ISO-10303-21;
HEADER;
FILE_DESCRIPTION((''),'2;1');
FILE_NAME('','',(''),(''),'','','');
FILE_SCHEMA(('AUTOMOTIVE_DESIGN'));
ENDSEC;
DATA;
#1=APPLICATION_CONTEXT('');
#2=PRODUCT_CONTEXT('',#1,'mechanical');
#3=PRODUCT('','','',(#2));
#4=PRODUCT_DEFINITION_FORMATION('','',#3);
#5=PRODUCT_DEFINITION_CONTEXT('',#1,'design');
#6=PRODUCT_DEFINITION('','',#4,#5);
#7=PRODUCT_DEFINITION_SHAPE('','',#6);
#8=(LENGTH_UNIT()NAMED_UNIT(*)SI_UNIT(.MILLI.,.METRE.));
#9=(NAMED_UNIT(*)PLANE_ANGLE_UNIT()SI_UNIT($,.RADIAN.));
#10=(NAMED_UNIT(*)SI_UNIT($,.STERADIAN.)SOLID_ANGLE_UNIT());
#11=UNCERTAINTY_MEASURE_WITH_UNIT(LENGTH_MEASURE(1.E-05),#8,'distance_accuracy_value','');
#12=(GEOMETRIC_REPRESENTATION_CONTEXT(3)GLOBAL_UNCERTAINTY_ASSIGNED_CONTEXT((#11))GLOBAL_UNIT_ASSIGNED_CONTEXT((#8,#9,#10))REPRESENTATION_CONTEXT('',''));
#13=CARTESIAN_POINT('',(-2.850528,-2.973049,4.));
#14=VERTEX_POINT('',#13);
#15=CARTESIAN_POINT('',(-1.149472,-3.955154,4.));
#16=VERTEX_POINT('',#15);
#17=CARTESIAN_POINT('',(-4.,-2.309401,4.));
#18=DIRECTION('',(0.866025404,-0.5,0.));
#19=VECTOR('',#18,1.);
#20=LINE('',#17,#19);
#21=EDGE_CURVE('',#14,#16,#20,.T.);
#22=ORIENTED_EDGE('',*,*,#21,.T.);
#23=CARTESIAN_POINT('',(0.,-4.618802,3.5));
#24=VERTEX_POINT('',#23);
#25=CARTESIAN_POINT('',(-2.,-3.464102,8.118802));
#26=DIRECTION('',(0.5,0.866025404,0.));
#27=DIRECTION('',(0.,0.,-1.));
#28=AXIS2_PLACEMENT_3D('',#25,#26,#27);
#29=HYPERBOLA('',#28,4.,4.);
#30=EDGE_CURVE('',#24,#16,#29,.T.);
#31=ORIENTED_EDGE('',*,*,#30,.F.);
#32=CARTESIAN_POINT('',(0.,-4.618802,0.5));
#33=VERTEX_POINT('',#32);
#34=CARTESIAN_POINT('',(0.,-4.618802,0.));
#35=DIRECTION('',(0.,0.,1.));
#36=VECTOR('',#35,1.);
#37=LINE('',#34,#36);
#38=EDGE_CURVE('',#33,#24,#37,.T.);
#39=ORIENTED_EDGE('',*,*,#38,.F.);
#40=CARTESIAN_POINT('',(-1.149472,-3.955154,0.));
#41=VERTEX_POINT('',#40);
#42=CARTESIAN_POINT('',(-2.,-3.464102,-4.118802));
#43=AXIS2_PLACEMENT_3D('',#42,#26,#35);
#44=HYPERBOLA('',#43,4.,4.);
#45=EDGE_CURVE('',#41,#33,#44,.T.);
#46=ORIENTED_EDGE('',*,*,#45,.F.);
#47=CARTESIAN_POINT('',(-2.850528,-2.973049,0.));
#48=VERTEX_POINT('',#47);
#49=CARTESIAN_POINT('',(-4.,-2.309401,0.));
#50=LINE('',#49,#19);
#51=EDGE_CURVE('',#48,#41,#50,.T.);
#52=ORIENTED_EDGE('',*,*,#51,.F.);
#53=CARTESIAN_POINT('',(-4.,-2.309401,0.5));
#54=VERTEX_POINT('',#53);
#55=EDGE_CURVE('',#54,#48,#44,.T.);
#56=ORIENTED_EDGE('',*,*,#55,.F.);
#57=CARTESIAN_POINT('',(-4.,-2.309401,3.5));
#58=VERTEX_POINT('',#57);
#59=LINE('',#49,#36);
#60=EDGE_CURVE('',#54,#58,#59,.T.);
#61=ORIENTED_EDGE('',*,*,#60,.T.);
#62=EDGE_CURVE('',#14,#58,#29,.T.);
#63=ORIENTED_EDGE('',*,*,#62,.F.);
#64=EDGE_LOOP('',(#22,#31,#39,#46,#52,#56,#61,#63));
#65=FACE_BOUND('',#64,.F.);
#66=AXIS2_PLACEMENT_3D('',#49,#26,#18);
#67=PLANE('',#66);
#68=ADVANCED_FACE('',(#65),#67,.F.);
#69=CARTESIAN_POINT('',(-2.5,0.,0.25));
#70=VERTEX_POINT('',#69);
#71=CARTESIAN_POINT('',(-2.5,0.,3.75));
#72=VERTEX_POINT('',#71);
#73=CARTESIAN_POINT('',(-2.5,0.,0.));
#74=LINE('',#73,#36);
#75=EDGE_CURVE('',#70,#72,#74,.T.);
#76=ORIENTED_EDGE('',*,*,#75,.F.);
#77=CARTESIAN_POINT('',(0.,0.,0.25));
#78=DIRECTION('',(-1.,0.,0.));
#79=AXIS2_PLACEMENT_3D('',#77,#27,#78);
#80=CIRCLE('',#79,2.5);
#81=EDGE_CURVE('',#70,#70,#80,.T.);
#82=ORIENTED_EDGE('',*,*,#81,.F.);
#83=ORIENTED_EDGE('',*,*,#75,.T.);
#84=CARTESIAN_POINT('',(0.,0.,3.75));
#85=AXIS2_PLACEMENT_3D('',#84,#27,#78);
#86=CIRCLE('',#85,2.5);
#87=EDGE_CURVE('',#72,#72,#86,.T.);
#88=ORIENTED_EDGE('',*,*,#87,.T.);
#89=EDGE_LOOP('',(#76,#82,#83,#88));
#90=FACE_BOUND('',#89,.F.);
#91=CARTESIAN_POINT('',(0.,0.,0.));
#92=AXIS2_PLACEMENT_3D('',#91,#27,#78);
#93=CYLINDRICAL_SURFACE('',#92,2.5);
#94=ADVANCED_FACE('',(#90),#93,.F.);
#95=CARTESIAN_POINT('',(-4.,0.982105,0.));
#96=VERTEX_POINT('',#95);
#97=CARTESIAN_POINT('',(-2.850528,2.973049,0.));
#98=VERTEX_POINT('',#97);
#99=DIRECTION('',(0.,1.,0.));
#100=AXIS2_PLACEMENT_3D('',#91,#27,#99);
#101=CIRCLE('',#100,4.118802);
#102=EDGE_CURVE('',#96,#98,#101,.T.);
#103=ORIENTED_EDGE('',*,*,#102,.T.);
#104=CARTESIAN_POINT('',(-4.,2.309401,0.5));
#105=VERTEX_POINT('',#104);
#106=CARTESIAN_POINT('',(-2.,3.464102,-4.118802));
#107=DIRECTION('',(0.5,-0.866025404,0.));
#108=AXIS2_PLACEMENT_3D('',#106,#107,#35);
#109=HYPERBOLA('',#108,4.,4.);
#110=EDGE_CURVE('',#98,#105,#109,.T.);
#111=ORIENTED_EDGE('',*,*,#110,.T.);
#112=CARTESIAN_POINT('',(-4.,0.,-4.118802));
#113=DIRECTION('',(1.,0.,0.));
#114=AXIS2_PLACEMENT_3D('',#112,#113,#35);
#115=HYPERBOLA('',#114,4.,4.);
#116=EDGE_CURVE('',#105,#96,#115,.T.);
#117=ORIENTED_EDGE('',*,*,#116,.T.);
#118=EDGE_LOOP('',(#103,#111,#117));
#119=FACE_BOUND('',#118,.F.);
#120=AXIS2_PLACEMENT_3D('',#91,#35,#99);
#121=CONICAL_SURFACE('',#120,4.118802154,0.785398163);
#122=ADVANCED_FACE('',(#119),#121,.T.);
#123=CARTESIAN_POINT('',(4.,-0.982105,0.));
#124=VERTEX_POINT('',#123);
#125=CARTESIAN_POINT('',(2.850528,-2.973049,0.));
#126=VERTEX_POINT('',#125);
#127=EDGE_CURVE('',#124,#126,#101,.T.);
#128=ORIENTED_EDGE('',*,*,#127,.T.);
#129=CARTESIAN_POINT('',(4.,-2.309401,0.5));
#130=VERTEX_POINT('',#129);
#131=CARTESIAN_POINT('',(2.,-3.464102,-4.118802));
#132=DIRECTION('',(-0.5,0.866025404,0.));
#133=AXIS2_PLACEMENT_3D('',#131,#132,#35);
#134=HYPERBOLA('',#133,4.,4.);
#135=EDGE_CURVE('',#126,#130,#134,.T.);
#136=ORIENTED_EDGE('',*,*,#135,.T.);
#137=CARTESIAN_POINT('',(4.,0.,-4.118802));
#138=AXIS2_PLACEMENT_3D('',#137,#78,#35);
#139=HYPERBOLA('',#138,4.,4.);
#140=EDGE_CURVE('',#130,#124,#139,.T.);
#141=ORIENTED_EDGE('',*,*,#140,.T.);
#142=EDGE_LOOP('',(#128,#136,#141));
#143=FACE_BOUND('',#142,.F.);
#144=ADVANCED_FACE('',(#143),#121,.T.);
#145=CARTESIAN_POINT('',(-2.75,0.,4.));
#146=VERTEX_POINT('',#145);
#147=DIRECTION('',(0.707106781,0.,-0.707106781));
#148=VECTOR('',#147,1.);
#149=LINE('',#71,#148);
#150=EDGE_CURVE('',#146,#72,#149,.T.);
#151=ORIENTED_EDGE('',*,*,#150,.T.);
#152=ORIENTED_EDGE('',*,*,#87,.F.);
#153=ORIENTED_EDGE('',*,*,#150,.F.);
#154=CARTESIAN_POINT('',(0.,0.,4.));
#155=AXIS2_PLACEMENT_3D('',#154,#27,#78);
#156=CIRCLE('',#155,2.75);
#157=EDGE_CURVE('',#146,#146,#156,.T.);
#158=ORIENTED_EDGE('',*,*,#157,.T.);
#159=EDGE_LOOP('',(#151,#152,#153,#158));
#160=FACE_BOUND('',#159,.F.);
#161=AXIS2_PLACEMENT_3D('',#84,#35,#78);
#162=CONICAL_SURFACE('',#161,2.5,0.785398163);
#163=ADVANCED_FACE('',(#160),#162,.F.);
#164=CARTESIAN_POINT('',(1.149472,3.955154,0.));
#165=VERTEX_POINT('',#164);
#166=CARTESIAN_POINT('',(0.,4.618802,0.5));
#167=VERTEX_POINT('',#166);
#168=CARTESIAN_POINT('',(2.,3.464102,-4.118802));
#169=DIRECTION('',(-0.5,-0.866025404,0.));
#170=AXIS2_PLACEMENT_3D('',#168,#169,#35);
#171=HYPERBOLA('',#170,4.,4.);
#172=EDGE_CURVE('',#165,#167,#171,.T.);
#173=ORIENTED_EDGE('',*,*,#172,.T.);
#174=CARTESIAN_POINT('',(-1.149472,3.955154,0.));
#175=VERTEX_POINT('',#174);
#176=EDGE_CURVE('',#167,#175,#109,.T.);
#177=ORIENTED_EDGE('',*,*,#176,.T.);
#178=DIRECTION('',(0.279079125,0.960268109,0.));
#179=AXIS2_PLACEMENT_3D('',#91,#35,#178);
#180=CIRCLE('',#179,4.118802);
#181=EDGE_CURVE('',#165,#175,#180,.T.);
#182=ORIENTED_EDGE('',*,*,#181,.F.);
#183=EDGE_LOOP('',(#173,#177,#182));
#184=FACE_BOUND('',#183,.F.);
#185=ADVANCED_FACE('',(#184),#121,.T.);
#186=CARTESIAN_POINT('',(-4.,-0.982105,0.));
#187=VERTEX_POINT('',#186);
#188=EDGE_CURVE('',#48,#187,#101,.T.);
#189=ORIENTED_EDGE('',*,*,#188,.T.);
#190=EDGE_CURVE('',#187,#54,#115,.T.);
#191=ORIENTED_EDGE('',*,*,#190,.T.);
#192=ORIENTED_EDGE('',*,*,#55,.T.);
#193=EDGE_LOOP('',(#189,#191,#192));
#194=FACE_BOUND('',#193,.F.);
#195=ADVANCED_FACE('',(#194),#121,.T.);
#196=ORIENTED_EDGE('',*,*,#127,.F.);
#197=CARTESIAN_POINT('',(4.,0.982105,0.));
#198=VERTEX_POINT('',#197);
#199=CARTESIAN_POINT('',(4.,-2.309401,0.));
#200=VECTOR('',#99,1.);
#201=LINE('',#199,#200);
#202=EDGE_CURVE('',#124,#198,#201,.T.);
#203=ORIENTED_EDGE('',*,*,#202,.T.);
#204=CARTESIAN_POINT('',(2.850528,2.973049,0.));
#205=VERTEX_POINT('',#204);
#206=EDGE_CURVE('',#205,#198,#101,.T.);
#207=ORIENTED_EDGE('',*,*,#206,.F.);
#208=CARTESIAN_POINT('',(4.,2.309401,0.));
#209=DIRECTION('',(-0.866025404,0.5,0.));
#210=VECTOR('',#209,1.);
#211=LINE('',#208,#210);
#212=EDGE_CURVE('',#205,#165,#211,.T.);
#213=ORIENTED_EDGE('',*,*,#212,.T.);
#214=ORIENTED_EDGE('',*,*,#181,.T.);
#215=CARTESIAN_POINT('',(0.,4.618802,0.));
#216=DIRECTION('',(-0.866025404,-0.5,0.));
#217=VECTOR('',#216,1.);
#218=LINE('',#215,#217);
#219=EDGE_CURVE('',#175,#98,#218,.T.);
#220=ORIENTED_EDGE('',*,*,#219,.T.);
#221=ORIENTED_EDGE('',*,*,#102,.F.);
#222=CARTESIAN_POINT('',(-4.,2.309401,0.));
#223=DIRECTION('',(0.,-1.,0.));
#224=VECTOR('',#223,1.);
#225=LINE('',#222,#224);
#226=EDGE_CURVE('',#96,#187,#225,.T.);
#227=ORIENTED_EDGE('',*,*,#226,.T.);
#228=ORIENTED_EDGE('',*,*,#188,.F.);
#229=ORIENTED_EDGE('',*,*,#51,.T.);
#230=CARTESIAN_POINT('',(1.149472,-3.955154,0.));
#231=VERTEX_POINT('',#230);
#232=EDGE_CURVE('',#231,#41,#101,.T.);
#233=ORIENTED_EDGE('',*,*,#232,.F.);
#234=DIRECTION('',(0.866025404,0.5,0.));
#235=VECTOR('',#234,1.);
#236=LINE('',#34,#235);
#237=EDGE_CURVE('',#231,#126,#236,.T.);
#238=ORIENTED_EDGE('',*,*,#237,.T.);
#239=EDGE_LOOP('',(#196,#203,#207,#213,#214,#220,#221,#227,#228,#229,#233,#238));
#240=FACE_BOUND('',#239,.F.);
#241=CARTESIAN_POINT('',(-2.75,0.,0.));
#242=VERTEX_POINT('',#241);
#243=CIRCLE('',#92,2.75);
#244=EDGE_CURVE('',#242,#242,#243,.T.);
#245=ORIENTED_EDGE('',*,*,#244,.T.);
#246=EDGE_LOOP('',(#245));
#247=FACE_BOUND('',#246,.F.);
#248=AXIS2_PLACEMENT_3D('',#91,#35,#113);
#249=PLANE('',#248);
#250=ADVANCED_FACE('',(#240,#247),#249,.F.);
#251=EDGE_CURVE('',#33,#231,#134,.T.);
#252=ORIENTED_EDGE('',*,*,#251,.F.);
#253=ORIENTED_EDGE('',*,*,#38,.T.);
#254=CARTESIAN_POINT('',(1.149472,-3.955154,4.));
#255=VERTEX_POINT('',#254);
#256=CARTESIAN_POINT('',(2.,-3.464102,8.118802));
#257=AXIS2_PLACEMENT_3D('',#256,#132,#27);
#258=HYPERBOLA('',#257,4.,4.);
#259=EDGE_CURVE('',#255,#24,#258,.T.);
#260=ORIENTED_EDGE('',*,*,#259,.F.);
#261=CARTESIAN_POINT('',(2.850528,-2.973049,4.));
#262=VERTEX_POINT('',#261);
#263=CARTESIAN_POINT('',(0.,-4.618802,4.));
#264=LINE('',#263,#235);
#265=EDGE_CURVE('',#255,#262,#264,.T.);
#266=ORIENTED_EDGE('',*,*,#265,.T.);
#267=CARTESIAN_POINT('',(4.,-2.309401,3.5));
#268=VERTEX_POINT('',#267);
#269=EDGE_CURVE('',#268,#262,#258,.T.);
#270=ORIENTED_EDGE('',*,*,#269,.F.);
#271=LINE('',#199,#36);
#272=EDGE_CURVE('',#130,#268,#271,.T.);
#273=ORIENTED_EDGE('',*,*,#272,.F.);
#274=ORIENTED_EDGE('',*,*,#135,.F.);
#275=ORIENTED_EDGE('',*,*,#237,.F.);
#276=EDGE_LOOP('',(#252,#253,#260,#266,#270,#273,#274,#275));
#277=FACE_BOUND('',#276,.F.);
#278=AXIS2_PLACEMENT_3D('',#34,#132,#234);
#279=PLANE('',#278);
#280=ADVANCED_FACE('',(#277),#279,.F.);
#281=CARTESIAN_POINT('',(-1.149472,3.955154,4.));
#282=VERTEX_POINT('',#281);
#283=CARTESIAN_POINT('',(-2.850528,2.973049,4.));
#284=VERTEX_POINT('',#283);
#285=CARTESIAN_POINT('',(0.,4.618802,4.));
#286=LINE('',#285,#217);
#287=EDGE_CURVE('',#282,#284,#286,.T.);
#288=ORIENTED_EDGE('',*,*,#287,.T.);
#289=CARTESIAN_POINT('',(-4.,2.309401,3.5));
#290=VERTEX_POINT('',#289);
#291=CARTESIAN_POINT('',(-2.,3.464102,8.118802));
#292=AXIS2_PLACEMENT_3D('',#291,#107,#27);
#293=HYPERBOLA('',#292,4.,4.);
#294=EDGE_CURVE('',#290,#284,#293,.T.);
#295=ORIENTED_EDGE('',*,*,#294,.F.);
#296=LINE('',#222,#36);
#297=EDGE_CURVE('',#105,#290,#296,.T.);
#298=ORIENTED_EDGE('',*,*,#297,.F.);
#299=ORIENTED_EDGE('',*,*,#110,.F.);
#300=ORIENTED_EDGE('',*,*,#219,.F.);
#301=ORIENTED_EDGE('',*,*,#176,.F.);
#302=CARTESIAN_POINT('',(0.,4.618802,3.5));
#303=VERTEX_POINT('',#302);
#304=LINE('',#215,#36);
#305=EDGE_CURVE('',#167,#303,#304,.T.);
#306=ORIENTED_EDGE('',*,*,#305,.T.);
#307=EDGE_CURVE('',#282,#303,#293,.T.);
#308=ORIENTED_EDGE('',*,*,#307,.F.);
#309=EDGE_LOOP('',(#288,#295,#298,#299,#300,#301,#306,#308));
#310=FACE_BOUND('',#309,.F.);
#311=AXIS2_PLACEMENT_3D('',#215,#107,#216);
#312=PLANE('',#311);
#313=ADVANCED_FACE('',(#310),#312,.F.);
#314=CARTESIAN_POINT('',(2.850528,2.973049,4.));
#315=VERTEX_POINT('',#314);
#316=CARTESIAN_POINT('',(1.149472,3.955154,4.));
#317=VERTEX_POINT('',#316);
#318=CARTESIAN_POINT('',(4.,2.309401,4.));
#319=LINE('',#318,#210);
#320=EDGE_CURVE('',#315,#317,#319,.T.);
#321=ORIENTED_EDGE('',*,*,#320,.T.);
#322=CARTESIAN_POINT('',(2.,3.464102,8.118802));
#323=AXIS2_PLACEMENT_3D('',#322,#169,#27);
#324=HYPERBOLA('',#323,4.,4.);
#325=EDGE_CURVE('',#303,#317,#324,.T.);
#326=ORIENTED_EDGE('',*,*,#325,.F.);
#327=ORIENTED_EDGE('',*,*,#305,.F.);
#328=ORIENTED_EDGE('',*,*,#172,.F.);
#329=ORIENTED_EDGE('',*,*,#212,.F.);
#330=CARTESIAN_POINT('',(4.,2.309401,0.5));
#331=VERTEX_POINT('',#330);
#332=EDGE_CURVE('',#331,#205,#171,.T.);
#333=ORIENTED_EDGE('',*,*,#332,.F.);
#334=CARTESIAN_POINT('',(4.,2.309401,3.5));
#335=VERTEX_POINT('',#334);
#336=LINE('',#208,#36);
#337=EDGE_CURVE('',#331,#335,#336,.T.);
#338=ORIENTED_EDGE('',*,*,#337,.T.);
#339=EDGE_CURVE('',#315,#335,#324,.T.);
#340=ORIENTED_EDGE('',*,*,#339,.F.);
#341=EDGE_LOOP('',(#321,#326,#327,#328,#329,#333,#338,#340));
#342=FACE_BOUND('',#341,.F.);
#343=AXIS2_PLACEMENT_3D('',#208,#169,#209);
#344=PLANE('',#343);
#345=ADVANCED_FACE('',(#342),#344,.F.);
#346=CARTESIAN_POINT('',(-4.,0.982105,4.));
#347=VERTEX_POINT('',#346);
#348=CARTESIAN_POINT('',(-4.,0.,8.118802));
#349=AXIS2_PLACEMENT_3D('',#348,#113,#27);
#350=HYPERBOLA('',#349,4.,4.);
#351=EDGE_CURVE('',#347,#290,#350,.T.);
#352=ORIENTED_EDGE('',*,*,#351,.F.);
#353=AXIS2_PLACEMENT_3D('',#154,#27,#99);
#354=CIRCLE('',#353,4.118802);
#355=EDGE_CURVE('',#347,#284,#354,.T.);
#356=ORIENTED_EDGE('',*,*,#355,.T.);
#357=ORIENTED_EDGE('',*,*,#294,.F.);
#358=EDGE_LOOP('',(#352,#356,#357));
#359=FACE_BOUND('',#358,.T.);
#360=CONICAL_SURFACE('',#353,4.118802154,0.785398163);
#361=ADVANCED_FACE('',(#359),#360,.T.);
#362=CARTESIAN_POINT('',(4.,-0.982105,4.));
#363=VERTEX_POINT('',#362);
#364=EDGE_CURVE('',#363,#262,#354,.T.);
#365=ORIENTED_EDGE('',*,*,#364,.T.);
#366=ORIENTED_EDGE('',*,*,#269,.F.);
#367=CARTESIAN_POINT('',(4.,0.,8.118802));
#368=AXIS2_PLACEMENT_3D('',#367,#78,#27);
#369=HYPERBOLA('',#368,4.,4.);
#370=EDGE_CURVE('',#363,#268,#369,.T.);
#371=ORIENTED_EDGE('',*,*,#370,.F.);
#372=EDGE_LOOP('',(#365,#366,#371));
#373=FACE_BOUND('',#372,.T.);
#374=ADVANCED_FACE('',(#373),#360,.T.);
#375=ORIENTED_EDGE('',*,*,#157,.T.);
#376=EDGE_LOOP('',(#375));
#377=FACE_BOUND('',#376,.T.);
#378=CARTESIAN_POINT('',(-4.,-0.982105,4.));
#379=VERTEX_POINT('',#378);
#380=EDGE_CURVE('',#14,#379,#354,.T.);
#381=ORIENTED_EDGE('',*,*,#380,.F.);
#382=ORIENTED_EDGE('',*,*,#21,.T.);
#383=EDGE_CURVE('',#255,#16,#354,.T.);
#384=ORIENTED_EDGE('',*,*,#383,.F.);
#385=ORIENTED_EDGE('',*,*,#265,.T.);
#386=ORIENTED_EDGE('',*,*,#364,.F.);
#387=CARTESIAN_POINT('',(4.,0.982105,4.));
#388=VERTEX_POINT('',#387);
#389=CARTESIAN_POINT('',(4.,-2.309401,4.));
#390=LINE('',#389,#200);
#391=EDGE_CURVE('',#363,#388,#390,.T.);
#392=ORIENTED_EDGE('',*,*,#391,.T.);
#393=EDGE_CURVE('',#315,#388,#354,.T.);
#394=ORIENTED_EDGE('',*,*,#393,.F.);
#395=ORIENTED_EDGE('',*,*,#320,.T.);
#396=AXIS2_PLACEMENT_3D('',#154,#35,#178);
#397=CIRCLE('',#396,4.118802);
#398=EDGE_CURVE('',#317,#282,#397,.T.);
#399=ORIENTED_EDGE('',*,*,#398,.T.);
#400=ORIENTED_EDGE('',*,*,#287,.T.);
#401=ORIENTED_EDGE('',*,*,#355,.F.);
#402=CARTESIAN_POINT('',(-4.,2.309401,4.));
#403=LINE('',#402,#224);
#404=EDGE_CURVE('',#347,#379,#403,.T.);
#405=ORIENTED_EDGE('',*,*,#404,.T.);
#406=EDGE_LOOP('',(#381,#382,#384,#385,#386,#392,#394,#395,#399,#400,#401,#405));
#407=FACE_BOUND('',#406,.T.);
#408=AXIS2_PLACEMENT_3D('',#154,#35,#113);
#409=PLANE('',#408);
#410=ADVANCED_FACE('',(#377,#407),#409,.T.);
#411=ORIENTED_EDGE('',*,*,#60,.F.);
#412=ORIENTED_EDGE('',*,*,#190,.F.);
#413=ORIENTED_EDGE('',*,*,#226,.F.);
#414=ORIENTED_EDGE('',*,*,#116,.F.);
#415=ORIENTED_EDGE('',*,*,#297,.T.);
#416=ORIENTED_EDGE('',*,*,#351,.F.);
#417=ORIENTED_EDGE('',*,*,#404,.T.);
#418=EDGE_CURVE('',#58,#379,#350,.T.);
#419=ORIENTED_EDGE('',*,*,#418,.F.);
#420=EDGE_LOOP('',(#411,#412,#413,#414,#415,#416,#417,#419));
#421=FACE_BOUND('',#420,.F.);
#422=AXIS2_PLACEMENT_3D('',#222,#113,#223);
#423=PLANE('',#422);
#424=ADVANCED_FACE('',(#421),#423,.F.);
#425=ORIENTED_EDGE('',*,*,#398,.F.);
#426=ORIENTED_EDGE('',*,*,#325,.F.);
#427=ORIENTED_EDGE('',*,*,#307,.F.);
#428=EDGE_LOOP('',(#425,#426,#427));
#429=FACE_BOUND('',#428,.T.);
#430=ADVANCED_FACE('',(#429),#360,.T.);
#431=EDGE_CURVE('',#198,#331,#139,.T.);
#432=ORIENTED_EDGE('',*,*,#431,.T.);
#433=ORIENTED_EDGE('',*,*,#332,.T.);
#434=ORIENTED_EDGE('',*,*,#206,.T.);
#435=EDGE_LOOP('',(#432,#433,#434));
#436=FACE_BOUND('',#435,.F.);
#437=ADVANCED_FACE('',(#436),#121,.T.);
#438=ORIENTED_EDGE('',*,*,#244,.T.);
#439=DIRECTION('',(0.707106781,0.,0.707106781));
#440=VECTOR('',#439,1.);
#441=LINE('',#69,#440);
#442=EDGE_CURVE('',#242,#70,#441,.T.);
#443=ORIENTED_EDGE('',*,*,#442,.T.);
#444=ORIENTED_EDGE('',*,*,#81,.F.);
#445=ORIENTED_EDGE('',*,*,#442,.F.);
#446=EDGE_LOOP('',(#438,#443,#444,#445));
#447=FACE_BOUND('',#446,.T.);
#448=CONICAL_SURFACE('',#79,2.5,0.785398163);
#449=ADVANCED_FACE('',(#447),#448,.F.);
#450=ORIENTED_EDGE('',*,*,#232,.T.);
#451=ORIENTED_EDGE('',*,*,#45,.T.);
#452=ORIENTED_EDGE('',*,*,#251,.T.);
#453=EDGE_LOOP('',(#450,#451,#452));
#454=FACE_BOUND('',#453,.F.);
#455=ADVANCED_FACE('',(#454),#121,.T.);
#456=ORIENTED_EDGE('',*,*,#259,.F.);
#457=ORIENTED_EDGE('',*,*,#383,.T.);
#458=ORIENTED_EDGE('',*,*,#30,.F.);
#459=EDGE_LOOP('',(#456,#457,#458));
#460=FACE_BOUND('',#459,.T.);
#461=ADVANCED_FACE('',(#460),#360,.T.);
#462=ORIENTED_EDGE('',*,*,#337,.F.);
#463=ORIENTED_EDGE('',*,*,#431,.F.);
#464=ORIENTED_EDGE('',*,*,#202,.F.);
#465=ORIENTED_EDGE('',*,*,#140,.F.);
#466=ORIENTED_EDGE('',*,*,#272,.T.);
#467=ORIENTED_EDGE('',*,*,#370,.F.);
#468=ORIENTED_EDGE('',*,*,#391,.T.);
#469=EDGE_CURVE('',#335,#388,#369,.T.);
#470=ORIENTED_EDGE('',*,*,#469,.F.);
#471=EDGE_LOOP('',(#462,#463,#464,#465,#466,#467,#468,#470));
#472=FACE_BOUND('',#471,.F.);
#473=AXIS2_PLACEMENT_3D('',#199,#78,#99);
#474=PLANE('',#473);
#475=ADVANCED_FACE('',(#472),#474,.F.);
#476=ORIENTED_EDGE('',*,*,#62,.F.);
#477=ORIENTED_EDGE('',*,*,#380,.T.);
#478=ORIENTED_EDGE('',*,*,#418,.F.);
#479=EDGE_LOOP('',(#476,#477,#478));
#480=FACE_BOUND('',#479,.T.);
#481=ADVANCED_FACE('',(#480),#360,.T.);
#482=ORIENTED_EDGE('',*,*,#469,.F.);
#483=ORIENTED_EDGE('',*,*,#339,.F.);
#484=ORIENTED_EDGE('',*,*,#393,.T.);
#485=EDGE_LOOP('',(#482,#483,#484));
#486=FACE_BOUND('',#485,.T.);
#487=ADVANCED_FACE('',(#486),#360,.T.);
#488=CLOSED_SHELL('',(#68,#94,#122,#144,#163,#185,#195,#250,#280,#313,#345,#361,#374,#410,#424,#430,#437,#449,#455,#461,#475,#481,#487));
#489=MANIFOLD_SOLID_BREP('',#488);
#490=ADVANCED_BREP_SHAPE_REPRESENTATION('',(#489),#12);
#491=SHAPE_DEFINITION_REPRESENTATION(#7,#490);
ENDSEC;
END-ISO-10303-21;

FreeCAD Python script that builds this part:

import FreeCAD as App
import Part
import Sketcher
from FreeCAD import Vector
Q = App.Units.Quantity


def edges_at(feature, points):
    """Names of the edges that pass closest to the given points."""
    edges = feature.Shape.Edges
    near = lambda p: min(range(len(edges)), key=lambda i: edges[i].distToShape(Part.Vertex(*p))[0])
    return sorted({f"Edge{near(p) + 1}" for p in points})


def add_polygon(sketch, points):
    """Adds a closed chain of lines whose ends are joined by coincident constraints."""
    first, n = sketch.GeometryCount, len(points)
    for a, b in zip(points, points[1:] + points[:1]):
        sketch.addGeometry(Part.LineSegment(App.Vector(*a, 0), App.Vector(*b, 0)), False)
    for i in range(n):
        sketch.addConstraint(Sketcher.Constraint("Coincident", first + i, 2, first + (i + 1) % n, 1))

doc = App.newDocument("Part")
body = doc.addObject("PartDesign::Body", "Body")

sketch1 = body.newObject("Sketcher::SketchObject", "Sketch")
sketch1.AttachmentSupport = (doc.getObject("XY_Plane"), [""])
sketch1.MapMode = "FlatFace"
add_polygon(sketch1, [(0, 4.6), (-4, 2.3), (-4, -2.3), (0, -4.6), (4, -2.3), (4, 2.3)])
sketch1.addConstraint([
    Sketcher.Constraint("Vertical", 1),
    Sketcher.Constraint("Vertical", 4),
    Sketcher.Constraint("Symmetric", 0, 2, 3, 2, -1, 1),
    Sketcher.Constraint("Symmetric", 2, 2, 5, 2, -1, 1),
    Sketcher.Constraint("PointOnObject", 2, 2, -2),
    Sketcher.Constraint("Parallel", 2, 5),
    Sketcher.Constraint("Horizontal", 1, 2, 3, 2),
    Sketcher.Constraint("Angle", 0, Q("-150 deg")),
    Sketcher.Constraint("DistanceX", 0, 2, -1, 1, 4.0),
    Sketcher.Constraint("DistanceY", -1, 1, 0, 2, 2.309401),
])
pad1 = body.newObject("PartDesign::Pad", "Pad")
pad1.Profile = sketch1
pad1.Length = 4

sketch2 = body.newObject("Sketcher::SketchObject", "Sketch001")
sketch2.AttachmentSupport = (doc.getObject("YZ_Plane"), [""])
sketch2.MapMode = "FlatFace"
add_polygon(sketch2, [(4.6, 4), (4.1, 4), (4.6, 3.5)])
add_polygon(sketch2, [(4.6, 0), (4.6, 0.5), (4.1, 0)])
sketch2.addConstraint([
    Sketcher.Constraint("Horizontal", 0),
    Sketcher.Constraint("Vertical", 2),
    Sketcher.Constraint("Vertical", 3),
    Sketcher.Constraint("Horizontal", 5),
    Sketcher.Constraint("PointOnObject", 4, 2, -1),
    Sketcher.Constraint("Perpendicular", 1, 4),
    Sketcher.Constraint("Vertical", 2, 2, 3, 2),
    Sketcher.Constraint("Vertical", 0, 2, 4, 2),
    Sketcher.Constraint("Equal", 5, 2),
    Sketcher.Constraint("DistanceX", 0, 2, 0, 1, 0.5),
    Sketcher.Constraint("DistanceY", -1, 1, 0, 2, 4.0),
    Sketcher.Constraint("DistanceX", -1, 1, 0, 2, 4.118802),
])
groove = body.newObject("PartDesign::Groove", "Groove")
groove.Profile = sketch2
groove.ReferenceAxis = (sketch2, ["V_Axis"])
groove.Angle = 360

sketch3 = body.newObject("Sketcher::SketchObject", "Sketch002")
sketch3.AttachmentSupport = (doc.getObject("XY_Plane"), [""])
sketch3.MapMode = "FlatFace"
sketch3.addGeometry(Part.Circle(Vector(0, 0, 0), Vector(0, 0, 1), 2.5), False)
sketch3.addConstraint([
    Sketcher.Constraint("Coincident", 0, 3, -1, 1),
    Sketcher.Constraint("Diameter", 0, 5.0),
])
pocket1 = body.newObject("PartDesign::Pocket", "Pocket")
pocket1.Profile = sketch3
pocket1.Type = "ThroughAll"
pocket1.Reversed = True
doc.recompute()

chamfer = body.newObject("PartDesign::Chamfer", "Chamfer")
chamfer.Base = (pocket1, edges_at(pocket1, [(2.5, 0, 4), (2.5, 0, 0)]))
chamfer.Size = 0.25

doc.recompute()
